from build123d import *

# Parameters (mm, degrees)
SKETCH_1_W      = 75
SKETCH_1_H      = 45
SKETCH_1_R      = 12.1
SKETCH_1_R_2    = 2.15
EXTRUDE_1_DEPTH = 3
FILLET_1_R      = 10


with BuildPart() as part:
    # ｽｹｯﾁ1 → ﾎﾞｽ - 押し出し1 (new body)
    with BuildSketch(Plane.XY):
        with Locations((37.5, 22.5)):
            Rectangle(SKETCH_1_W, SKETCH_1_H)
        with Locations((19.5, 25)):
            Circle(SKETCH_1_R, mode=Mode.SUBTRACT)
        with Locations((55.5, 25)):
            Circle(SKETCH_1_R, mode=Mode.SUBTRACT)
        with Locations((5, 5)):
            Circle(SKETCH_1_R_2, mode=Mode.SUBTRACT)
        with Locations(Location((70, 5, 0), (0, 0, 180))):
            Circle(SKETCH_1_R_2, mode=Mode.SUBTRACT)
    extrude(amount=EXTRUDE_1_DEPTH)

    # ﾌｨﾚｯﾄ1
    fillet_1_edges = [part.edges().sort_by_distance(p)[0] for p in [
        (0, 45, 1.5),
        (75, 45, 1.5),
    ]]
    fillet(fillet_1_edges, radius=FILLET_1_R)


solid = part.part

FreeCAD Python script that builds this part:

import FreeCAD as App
import Part
import Sketcher
from FreeCAD import Vector


def edges_at(feature, points):
    """Names of the edges that pass closest to the given points."""
    edges = feature.Shape.Edges
    near = lambda p: min(range(len(edges)), key=lambda i: edges[i].distToShape(Part.Vertex(*p))[0])
    return sorted({f"Edge{near(p) + 1}" for p in points})


def add_polygon(sketch, points):
    """Adds a closed chain of lines whose ends are joined by coincident constraints."""
    first, n = sketch.GeometryCount, len(points)
    for a, b in zip(points, points[1:] + points[:1]):
        sketch.addGeometry(Part.LineSegment(App.Vector(*a, 0), App.Vector(*b, 0)), False)
    for i in range(n):
        sketch.addConstraint(Sketcher.Constraint("Coincident", first + i, 2, first + (i + 1) % n, 1))

doc = App.newDocument("Part")
body = doc.addObject("PartDesign::Body", "Body")

# Sketch on XY plane
sketch1 = body.newObject("Sketcher::SketchObject", "Sketch")
sketch1.AttachmentSupport = (doc.getObject("XY_Plane"), [""])
sketch1.MapMode = "FlatFace"
add_polygon(sketch1, [(0, 45), (0, 0), (75, 0), (75, 45)])  # lines 0-3
sketch1.addGeometry(Part.Circle(Vector(5, 5, 0), Vector(0, 0, 1), 2.1), False)  # 4
sketch1.addGeometry(Part.Circle(Vector(70, 5, 0), Vector(0, 0, 1), 2.1), False)  # 5
sketch1.addGeometry(Part.Circle(Vector(19.5, 25, 0), Vector(0, 0, 1), 12.1), False)  # 6
sketch1.addGeometry(Part.Circle(Vector(55.5, 25, 0), Vector(0, 0, 1), 12.1), False)  # 7
sketch1.addConstraint([
    Sketcher.Constraint("Vertical", 0),
    Sketcher.Constraint("Horizontal", 1),
    Sketcher.Constraint("Vertical", 2),
    Sketcher.Constraint("Horizontal", 3),
    Sketcher.Constraint("Coincident", 0, 2, -1, 1),
    Sketcher.Constraint("Equal", 4, 5),
    Sketcher.Constraint("Equal", 6, 7),
    Sketcher.Constraint("Horizontal", 4, 3, 5, 3),
    Sketcher.Constraint("Horizontal", 6, 3, 7, 3),
    Sketcher.Constraint("Diameter", 4, 4.3),
    Sketcher.Constraint("Diameter", 6, 24.2),
    Sketcher.Constraint("DistanceX", 1, 1, 1, 2, 75.0),
    Sketcher.Constraint("DistanceY", 0, 2, 0, 1, 45.0),
    Sketcher.Constraint("DistanceX", -1, 1, 4, 3, 5.0),
    Sketcher.Constraint("DistanceY", -1, 1, 4, 3, 5.0),
    Sketcher.Constraint("DistanceX", -1, 1, 5, 3, 70.0),
    Sketcher.Constraint("DistanceY", -1, 1, 6, 3, 25.0),
    Sketcher.Constraint("DistanceX", 6, 3, 7, 3, 36.0),
    Sketcher.Constraint("DistanceX", -1, 1, 6, 3, 19.5),
])
pad1 = body.newObject("PartDesign::Pad", "Pad")
pad1.Profile = sketch1
pad1.Length = 3
doc.recompute()

fillet = body.newObject("PartDesign::Fillet", "Fillet")
fillet.Base = (pad1, edges_at(pad1, [(0, 45, 1.5), (75, 45, 1.5)]))
fillet.Radius = 10

doc.recompute()
